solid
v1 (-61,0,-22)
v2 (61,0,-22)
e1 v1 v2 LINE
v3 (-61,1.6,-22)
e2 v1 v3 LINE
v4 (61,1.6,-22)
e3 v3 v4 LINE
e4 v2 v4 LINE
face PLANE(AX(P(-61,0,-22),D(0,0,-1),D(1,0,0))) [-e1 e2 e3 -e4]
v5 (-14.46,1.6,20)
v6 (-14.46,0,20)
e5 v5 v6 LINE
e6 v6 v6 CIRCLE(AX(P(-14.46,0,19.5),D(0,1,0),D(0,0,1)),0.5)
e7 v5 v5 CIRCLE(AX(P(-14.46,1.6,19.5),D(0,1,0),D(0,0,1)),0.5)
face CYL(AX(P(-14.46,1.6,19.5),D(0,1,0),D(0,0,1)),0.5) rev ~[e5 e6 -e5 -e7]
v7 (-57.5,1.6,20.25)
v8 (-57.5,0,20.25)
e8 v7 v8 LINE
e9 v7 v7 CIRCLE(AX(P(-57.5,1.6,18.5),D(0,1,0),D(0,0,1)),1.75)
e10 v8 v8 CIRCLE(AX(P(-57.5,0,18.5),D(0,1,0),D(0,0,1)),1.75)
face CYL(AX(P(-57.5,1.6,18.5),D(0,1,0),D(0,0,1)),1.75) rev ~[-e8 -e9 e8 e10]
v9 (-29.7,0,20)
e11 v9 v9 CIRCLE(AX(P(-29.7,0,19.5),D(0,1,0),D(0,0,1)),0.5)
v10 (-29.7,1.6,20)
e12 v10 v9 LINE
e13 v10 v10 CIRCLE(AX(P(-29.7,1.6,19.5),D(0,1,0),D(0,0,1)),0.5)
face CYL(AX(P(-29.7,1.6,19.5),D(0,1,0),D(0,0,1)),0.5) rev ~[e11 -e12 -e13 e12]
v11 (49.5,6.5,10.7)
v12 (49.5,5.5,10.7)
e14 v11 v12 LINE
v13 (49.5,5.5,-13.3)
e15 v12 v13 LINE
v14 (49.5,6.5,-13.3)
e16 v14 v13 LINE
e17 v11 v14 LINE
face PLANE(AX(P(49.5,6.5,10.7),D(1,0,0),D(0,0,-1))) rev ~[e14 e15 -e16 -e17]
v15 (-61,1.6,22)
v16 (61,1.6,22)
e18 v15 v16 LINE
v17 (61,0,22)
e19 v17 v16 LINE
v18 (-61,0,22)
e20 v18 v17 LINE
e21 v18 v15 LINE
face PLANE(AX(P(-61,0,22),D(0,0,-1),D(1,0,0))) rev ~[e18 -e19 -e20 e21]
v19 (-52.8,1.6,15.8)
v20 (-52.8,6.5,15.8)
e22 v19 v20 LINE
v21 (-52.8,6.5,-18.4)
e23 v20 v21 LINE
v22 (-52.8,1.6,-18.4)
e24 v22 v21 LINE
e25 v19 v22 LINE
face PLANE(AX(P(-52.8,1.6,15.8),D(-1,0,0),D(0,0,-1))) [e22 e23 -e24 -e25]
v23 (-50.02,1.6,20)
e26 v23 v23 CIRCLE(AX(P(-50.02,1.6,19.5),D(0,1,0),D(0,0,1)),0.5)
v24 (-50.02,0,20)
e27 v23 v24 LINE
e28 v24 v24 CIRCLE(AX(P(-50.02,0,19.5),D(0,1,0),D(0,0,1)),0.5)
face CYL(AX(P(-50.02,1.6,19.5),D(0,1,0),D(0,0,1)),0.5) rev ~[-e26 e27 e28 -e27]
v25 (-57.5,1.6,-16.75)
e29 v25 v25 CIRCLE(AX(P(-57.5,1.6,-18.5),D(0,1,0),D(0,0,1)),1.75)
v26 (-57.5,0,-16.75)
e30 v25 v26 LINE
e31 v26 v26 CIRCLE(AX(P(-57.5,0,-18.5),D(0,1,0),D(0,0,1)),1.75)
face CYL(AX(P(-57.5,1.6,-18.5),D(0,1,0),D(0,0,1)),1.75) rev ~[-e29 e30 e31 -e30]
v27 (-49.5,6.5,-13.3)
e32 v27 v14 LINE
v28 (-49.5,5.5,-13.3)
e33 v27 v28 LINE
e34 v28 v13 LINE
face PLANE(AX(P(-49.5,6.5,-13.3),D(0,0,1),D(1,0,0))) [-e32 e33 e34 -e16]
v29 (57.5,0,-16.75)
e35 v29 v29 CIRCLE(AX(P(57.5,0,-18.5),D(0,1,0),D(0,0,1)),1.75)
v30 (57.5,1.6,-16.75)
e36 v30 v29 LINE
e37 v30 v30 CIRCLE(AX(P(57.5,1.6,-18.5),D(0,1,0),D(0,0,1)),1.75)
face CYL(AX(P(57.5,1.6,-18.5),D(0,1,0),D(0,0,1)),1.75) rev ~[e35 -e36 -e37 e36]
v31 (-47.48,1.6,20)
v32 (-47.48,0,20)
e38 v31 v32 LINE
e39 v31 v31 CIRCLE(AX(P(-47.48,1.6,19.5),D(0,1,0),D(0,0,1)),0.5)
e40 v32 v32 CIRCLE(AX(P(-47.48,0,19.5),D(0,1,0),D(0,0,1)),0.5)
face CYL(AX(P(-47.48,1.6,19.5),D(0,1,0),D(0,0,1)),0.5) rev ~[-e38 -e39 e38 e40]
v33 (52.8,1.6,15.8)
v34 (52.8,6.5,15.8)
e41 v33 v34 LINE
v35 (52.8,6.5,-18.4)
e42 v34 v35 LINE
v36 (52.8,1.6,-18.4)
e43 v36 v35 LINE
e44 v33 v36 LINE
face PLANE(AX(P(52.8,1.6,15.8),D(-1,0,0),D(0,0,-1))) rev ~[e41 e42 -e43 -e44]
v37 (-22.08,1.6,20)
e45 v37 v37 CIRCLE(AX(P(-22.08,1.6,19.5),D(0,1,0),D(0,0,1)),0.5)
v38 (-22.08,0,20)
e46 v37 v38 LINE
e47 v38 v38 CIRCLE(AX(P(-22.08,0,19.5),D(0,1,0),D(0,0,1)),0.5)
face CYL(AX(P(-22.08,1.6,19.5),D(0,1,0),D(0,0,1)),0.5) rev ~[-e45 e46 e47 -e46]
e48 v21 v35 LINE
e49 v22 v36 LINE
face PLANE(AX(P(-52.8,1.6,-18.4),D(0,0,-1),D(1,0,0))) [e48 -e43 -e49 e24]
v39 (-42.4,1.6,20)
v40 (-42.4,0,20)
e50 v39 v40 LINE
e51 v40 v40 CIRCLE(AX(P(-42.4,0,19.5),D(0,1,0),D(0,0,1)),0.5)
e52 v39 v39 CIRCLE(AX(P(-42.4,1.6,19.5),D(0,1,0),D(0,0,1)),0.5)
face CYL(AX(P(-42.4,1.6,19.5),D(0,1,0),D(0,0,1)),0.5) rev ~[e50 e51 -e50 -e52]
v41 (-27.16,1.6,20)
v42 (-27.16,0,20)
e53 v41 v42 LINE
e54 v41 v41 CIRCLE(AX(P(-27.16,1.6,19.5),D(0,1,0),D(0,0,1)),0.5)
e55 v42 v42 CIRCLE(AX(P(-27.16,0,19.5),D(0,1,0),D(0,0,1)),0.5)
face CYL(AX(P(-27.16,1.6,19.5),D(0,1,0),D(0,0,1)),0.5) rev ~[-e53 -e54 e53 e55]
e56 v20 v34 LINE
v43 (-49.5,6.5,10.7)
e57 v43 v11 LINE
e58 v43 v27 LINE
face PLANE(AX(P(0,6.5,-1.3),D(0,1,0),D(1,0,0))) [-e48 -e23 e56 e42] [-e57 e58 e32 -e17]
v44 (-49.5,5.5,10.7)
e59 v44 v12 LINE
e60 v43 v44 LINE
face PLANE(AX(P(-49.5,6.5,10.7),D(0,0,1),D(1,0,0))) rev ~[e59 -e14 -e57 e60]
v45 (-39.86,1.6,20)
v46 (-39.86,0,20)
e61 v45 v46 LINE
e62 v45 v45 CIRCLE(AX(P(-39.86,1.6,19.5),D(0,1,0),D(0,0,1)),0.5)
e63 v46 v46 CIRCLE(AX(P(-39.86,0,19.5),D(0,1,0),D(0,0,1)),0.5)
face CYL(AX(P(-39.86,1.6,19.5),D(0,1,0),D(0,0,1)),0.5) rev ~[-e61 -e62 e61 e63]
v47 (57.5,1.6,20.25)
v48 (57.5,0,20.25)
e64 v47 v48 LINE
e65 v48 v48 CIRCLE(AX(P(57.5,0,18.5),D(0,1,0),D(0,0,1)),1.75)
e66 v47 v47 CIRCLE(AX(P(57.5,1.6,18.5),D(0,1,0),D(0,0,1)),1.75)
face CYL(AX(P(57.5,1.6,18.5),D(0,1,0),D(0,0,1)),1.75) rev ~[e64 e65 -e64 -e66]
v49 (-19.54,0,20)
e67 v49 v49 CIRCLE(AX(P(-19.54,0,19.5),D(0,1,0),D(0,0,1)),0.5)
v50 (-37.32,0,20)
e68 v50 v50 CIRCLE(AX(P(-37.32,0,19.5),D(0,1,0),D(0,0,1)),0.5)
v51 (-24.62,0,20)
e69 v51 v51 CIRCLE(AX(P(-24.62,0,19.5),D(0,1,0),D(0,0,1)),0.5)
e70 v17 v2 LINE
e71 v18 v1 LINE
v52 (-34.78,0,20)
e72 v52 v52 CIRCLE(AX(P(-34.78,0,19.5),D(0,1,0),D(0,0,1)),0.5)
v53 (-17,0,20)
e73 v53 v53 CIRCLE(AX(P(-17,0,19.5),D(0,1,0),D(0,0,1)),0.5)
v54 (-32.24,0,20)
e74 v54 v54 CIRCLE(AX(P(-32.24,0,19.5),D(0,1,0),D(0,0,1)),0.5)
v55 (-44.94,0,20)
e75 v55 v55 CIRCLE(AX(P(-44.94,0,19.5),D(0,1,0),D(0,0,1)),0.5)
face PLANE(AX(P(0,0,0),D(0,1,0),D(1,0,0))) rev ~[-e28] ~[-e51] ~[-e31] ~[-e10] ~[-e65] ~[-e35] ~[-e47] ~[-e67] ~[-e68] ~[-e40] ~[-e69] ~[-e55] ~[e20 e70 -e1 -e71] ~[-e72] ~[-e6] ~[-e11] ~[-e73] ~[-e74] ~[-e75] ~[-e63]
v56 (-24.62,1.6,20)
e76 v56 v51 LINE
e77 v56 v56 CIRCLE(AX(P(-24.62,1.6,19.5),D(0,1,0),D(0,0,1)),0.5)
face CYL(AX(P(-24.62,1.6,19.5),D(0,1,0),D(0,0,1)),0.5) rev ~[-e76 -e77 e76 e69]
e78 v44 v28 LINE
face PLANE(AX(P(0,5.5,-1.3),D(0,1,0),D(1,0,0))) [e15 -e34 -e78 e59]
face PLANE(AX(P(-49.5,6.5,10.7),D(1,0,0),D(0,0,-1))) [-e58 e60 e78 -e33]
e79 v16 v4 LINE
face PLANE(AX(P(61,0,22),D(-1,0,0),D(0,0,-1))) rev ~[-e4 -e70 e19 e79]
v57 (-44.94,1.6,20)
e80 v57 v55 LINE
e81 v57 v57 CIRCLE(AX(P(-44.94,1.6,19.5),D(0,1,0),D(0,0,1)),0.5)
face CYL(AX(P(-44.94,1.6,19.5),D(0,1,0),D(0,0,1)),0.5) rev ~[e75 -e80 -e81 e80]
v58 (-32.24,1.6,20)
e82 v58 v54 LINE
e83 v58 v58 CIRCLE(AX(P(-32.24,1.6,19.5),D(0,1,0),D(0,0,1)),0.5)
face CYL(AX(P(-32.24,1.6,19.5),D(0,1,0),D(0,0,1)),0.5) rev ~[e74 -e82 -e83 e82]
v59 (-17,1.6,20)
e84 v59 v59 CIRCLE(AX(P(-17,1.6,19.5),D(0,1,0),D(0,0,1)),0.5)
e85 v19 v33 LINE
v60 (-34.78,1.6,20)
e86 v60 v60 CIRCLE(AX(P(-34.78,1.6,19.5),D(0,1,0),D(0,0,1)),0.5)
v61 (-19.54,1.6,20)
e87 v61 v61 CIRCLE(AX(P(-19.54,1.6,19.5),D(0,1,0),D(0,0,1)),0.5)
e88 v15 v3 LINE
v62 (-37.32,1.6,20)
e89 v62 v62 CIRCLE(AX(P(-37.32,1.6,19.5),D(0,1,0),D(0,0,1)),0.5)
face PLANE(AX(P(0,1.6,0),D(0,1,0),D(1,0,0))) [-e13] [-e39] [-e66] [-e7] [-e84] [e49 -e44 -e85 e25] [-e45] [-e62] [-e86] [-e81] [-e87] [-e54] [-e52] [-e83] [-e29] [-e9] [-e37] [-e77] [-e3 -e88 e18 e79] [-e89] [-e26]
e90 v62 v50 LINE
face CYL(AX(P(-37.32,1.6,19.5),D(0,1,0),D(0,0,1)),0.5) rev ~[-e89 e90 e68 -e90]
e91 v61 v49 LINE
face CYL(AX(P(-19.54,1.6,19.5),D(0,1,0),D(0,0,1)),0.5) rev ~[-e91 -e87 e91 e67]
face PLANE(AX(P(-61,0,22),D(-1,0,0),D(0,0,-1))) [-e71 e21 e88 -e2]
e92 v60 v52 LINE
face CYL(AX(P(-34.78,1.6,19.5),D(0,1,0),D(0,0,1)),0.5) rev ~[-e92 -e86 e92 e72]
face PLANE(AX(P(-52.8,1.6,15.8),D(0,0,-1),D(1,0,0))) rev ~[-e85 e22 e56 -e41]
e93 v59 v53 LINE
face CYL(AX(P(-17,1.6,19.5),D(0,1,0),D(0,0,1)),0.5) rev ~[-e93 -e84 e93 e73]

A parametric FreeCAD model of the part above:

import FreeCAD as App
import Part
import Sketcher

V = App.Vector


def add_polygon(sketch, points):
    """Adds a closed chain of lines whose ends are joined by coincident constraints."""
    first, n = sketch.GeometryCount, len(points)
    for a, b in zip(points, points[1:] + points[:1]):
        sketch.addGeometry(Part.LineSegment(App.Vector(*a, 0), App.Vector(*b, 0)), False)
    for i in range(n):
        sketch.addConstraint(Sketcher.Constraint("Coincident", first + i, 2, first + (i + 1) % n, 1))

doc = App.newDocument("Part")
body = doc.addObject("PartDesign::Body", "Body")

# Sketch on XZ plane
sketch1 = doc.addObject("Sketcher::SketchObject", "Sketch")
body.addObject(sketch1)
sketch1.AttachmentSupport = (doc.XZ_Plane, [""])
sketch1.MapMode = "FlatFace"
add_polygon(sketch1, [(-61, -22), (-61, 22), (61, 22), (61, -22)])  # lines 0-3
sketch1.addConstraint([
    Sketcher.Constraint("Vertical", 0),
    Sketcher.Constraint("Horizontal", 1),
    Sketcher.Constraint("Vertical", 2),
    Sketcher.Constraint("Horizontal", 3),
    Sketcher.Constraint("Symmetric", 0, 2, 2, 2, -1, 1),
    Sketcher.Constraint("DistanceX", 1, 1, 1, 2, 122.0),
    Sketcher.Constraint("DistanceY", 0, 1, 0, 2, 44.0),
])
pad1 = doc.addObject("PartDesign::Pad", "Pad")
body.addObject(pad1)
pad1.Profile = sketch1
pad1.Length = 1.6
pad1.Reversed = True

# Sketch on XZ plane
sketch2 = doc.addObject("Sketcher::SketchObject", "Sketch001")
body.addObject(sketch2)
sketch2.AttachmentSupport = (doc.XZ_Plane, [""])
sketch2.MapMode = "FlatFace"
sketch2.AttachmentOffset = App.Placement(V(0, 0, -1.6), App.Rotation())
add_polygon(sketch2, [(-53, -18), (-53, 16), (53, 16), (53, -18)])  # lines 0-3
sketch2.addConstraint([
    Sketcher.Constraint("Vertical", 0),
    Sketcher.Constraint("Horizontal", 1),
    Sketcher.Constraint("Vertical", 2),
    Sketcher.Constraint("Horizontal", 3),
    Sketcher.Constraint("DistanceX", 1, 1, 1, 2, 105.6),
    Sketcher.Constraint("DistanceY", 0, 1, 0, 2, 34.2),
    Sketcher.Constraint("DistanceX", 0, 2, -1, 1, 52.8),
    Sketcher.Constraint("DistanceY", -1, 1, 0, 2, 15.8),
])
pad2 = doc.addObject("PartDesign::Pad", "Pad001")
body.addObject(pad2)
pad2.Profile = sketch2
pad2.Length = 4.9
pad2.Reversed = True

# Sketch on XZ plane
sketch3 = doc.addObject("Sketcher::SketchObject", "Sketch002")
body.addObject(sketch3)
sketch3.AttachmentSupport = (doc.XZ_Plane, [""])
sketch3.MapMode = "FlatFace"
sketch3.AttachmentOffset = App.Placement(V(0, 0, -1.6), App.Rotation())
sketch3.addGeometry([
    Part.Circle(V(-57.5, -18.5, 0), V(0, 0, 1), 1.8),
    Part.Circle(V(-57.5, 18.5, 0), V(0, 0, 1), 1.8),
    Part.Circle(V(57.5, -18.5, 0), V(0, 0, 1), 1.8),
    Part.Circle(V(57.5, 18.5, 0), V(0, 0, 1), 1.8),
], False)
sketch3.addConstraint([
    Sketcher.Constraint("Equal", 0, 1),
    Sketcher.Constraint("Equal", 1, 2),
    Sketcher.Constraint("Equal", 2, 3),
    Sketcher.Constraint("Symmetric", 1, 3, 2, 3, -1, 1),
    Sketcher.Constraint("Symmetric", 0, 3, 3, 3, -1, 1),
    Sketcher.Constraint("Symmetric", 0, 3, 2, 3, -2),
    Sketcher.Constraint("Diameter", 0, 3.5),
    Sketcher.Constraint("DistanceY", 0, 3, 1, 3, 37.0),
    Sketcher.Constraint("DistanceX", 0, 3, 2, 3, 115.0),
])
pocket1 = doc.addObject("PartDesign::Pocket", "Pocket")
body.addObject(pocket1)
pocket1.Profile = sketch3
pocket1.Type = "ThroughAll"
pocket1.Reversed = True

# Sketch on XZ plane
sketch4 = doc.addObject("Sketcher::SketchObject", "Sketch003")
body.addObject(sketch4)
sketch4.AttachmentSupport = (doc.XZ_Plane, [""])
sketch4.MapMode = "FlatFace"
sketch4.AttachmentOffset = App.Placement(V(0, 0, -6.5), App.Rotation())
add_polygon(sketch4, [(-50, -13), (-50, 11), (50, 11), (50, -13)])  # lines 0-3
sketch4.addConstraint([
    Sketcher.Constraint("Vertical", 0),
    Sketcher.Constraint("Horizontal", 1),
    Sketcher.Constraint("Vertical", 2),
    Sketcher.Constraint("Horizontal", 3),
    Sketcher.Constraint("DistanceX", 1, 1, 1, 2, 99.0),
    Sketcher.Constraint("DistanceY", 0, 1, 0, 2, 24.0),
    Sketcher.Constraint("DistanceX", 0, 2, -1, 1, 49.5),
    Sketcher.Constraint("DistanceY", -1, 1, 0, 2, 10.7),
])
pocket2 = doc.addObject("PartDesign::Pocket", "Pocket001")
body.addObject(pocket2)
pocket2.Profile = sketch4
pocket2.Length = 1
pocket2.Reversed = True

# Sketch on XZ plane
sketch5 = doc.addObject("Sketcher::SketchObject", "Sketch004")
body.addObject(sketch5)
sketch5.AttachmentSupport = (doc.XZ_Plane, [""])
sketch5.MapMode = "FlatFace"
sketch5.AttachmentOffset = App.Placement(V(0, 0, -1.6), App.Rotation())
sketch5.addGeometry(Part.Circle(V(-50, 19.5, 0), V(0, 0, 1), 0.5), False)
sketch5.addConstraint([
    Sketcher.Constraint("Diameter", 0, 1.0),
    Sketcher.Constraint("DistanceY", -1, 1, 0, 3, 19.5),
    Sketcher.Constraint("DistanceX", 0, 3, -1, 1, 50.02),
])
pocket3 = doc.addObject("PartDesign::Pocket", "Pocket002")
body.addObject(pocket3)
pocket3.Profile = sketch5
pocket3.Type = "ThroughAll"
pocket3.Reversed = True
doc.recompute()

linearpattern = doc.addObject("PartDesign::LinearPattern", "LinearPattern")
body.addObject(linearpattern)
linearpattern.Originals = [pocket3]
linearpattern.Direction = (doc.X_Axis, [""])
linearpattern.Mode = "offset"
linearpattern.Offset = 2.54
linearpattern.Occurrences = 15
body.Tip = linearpattern

doc.recompute()
